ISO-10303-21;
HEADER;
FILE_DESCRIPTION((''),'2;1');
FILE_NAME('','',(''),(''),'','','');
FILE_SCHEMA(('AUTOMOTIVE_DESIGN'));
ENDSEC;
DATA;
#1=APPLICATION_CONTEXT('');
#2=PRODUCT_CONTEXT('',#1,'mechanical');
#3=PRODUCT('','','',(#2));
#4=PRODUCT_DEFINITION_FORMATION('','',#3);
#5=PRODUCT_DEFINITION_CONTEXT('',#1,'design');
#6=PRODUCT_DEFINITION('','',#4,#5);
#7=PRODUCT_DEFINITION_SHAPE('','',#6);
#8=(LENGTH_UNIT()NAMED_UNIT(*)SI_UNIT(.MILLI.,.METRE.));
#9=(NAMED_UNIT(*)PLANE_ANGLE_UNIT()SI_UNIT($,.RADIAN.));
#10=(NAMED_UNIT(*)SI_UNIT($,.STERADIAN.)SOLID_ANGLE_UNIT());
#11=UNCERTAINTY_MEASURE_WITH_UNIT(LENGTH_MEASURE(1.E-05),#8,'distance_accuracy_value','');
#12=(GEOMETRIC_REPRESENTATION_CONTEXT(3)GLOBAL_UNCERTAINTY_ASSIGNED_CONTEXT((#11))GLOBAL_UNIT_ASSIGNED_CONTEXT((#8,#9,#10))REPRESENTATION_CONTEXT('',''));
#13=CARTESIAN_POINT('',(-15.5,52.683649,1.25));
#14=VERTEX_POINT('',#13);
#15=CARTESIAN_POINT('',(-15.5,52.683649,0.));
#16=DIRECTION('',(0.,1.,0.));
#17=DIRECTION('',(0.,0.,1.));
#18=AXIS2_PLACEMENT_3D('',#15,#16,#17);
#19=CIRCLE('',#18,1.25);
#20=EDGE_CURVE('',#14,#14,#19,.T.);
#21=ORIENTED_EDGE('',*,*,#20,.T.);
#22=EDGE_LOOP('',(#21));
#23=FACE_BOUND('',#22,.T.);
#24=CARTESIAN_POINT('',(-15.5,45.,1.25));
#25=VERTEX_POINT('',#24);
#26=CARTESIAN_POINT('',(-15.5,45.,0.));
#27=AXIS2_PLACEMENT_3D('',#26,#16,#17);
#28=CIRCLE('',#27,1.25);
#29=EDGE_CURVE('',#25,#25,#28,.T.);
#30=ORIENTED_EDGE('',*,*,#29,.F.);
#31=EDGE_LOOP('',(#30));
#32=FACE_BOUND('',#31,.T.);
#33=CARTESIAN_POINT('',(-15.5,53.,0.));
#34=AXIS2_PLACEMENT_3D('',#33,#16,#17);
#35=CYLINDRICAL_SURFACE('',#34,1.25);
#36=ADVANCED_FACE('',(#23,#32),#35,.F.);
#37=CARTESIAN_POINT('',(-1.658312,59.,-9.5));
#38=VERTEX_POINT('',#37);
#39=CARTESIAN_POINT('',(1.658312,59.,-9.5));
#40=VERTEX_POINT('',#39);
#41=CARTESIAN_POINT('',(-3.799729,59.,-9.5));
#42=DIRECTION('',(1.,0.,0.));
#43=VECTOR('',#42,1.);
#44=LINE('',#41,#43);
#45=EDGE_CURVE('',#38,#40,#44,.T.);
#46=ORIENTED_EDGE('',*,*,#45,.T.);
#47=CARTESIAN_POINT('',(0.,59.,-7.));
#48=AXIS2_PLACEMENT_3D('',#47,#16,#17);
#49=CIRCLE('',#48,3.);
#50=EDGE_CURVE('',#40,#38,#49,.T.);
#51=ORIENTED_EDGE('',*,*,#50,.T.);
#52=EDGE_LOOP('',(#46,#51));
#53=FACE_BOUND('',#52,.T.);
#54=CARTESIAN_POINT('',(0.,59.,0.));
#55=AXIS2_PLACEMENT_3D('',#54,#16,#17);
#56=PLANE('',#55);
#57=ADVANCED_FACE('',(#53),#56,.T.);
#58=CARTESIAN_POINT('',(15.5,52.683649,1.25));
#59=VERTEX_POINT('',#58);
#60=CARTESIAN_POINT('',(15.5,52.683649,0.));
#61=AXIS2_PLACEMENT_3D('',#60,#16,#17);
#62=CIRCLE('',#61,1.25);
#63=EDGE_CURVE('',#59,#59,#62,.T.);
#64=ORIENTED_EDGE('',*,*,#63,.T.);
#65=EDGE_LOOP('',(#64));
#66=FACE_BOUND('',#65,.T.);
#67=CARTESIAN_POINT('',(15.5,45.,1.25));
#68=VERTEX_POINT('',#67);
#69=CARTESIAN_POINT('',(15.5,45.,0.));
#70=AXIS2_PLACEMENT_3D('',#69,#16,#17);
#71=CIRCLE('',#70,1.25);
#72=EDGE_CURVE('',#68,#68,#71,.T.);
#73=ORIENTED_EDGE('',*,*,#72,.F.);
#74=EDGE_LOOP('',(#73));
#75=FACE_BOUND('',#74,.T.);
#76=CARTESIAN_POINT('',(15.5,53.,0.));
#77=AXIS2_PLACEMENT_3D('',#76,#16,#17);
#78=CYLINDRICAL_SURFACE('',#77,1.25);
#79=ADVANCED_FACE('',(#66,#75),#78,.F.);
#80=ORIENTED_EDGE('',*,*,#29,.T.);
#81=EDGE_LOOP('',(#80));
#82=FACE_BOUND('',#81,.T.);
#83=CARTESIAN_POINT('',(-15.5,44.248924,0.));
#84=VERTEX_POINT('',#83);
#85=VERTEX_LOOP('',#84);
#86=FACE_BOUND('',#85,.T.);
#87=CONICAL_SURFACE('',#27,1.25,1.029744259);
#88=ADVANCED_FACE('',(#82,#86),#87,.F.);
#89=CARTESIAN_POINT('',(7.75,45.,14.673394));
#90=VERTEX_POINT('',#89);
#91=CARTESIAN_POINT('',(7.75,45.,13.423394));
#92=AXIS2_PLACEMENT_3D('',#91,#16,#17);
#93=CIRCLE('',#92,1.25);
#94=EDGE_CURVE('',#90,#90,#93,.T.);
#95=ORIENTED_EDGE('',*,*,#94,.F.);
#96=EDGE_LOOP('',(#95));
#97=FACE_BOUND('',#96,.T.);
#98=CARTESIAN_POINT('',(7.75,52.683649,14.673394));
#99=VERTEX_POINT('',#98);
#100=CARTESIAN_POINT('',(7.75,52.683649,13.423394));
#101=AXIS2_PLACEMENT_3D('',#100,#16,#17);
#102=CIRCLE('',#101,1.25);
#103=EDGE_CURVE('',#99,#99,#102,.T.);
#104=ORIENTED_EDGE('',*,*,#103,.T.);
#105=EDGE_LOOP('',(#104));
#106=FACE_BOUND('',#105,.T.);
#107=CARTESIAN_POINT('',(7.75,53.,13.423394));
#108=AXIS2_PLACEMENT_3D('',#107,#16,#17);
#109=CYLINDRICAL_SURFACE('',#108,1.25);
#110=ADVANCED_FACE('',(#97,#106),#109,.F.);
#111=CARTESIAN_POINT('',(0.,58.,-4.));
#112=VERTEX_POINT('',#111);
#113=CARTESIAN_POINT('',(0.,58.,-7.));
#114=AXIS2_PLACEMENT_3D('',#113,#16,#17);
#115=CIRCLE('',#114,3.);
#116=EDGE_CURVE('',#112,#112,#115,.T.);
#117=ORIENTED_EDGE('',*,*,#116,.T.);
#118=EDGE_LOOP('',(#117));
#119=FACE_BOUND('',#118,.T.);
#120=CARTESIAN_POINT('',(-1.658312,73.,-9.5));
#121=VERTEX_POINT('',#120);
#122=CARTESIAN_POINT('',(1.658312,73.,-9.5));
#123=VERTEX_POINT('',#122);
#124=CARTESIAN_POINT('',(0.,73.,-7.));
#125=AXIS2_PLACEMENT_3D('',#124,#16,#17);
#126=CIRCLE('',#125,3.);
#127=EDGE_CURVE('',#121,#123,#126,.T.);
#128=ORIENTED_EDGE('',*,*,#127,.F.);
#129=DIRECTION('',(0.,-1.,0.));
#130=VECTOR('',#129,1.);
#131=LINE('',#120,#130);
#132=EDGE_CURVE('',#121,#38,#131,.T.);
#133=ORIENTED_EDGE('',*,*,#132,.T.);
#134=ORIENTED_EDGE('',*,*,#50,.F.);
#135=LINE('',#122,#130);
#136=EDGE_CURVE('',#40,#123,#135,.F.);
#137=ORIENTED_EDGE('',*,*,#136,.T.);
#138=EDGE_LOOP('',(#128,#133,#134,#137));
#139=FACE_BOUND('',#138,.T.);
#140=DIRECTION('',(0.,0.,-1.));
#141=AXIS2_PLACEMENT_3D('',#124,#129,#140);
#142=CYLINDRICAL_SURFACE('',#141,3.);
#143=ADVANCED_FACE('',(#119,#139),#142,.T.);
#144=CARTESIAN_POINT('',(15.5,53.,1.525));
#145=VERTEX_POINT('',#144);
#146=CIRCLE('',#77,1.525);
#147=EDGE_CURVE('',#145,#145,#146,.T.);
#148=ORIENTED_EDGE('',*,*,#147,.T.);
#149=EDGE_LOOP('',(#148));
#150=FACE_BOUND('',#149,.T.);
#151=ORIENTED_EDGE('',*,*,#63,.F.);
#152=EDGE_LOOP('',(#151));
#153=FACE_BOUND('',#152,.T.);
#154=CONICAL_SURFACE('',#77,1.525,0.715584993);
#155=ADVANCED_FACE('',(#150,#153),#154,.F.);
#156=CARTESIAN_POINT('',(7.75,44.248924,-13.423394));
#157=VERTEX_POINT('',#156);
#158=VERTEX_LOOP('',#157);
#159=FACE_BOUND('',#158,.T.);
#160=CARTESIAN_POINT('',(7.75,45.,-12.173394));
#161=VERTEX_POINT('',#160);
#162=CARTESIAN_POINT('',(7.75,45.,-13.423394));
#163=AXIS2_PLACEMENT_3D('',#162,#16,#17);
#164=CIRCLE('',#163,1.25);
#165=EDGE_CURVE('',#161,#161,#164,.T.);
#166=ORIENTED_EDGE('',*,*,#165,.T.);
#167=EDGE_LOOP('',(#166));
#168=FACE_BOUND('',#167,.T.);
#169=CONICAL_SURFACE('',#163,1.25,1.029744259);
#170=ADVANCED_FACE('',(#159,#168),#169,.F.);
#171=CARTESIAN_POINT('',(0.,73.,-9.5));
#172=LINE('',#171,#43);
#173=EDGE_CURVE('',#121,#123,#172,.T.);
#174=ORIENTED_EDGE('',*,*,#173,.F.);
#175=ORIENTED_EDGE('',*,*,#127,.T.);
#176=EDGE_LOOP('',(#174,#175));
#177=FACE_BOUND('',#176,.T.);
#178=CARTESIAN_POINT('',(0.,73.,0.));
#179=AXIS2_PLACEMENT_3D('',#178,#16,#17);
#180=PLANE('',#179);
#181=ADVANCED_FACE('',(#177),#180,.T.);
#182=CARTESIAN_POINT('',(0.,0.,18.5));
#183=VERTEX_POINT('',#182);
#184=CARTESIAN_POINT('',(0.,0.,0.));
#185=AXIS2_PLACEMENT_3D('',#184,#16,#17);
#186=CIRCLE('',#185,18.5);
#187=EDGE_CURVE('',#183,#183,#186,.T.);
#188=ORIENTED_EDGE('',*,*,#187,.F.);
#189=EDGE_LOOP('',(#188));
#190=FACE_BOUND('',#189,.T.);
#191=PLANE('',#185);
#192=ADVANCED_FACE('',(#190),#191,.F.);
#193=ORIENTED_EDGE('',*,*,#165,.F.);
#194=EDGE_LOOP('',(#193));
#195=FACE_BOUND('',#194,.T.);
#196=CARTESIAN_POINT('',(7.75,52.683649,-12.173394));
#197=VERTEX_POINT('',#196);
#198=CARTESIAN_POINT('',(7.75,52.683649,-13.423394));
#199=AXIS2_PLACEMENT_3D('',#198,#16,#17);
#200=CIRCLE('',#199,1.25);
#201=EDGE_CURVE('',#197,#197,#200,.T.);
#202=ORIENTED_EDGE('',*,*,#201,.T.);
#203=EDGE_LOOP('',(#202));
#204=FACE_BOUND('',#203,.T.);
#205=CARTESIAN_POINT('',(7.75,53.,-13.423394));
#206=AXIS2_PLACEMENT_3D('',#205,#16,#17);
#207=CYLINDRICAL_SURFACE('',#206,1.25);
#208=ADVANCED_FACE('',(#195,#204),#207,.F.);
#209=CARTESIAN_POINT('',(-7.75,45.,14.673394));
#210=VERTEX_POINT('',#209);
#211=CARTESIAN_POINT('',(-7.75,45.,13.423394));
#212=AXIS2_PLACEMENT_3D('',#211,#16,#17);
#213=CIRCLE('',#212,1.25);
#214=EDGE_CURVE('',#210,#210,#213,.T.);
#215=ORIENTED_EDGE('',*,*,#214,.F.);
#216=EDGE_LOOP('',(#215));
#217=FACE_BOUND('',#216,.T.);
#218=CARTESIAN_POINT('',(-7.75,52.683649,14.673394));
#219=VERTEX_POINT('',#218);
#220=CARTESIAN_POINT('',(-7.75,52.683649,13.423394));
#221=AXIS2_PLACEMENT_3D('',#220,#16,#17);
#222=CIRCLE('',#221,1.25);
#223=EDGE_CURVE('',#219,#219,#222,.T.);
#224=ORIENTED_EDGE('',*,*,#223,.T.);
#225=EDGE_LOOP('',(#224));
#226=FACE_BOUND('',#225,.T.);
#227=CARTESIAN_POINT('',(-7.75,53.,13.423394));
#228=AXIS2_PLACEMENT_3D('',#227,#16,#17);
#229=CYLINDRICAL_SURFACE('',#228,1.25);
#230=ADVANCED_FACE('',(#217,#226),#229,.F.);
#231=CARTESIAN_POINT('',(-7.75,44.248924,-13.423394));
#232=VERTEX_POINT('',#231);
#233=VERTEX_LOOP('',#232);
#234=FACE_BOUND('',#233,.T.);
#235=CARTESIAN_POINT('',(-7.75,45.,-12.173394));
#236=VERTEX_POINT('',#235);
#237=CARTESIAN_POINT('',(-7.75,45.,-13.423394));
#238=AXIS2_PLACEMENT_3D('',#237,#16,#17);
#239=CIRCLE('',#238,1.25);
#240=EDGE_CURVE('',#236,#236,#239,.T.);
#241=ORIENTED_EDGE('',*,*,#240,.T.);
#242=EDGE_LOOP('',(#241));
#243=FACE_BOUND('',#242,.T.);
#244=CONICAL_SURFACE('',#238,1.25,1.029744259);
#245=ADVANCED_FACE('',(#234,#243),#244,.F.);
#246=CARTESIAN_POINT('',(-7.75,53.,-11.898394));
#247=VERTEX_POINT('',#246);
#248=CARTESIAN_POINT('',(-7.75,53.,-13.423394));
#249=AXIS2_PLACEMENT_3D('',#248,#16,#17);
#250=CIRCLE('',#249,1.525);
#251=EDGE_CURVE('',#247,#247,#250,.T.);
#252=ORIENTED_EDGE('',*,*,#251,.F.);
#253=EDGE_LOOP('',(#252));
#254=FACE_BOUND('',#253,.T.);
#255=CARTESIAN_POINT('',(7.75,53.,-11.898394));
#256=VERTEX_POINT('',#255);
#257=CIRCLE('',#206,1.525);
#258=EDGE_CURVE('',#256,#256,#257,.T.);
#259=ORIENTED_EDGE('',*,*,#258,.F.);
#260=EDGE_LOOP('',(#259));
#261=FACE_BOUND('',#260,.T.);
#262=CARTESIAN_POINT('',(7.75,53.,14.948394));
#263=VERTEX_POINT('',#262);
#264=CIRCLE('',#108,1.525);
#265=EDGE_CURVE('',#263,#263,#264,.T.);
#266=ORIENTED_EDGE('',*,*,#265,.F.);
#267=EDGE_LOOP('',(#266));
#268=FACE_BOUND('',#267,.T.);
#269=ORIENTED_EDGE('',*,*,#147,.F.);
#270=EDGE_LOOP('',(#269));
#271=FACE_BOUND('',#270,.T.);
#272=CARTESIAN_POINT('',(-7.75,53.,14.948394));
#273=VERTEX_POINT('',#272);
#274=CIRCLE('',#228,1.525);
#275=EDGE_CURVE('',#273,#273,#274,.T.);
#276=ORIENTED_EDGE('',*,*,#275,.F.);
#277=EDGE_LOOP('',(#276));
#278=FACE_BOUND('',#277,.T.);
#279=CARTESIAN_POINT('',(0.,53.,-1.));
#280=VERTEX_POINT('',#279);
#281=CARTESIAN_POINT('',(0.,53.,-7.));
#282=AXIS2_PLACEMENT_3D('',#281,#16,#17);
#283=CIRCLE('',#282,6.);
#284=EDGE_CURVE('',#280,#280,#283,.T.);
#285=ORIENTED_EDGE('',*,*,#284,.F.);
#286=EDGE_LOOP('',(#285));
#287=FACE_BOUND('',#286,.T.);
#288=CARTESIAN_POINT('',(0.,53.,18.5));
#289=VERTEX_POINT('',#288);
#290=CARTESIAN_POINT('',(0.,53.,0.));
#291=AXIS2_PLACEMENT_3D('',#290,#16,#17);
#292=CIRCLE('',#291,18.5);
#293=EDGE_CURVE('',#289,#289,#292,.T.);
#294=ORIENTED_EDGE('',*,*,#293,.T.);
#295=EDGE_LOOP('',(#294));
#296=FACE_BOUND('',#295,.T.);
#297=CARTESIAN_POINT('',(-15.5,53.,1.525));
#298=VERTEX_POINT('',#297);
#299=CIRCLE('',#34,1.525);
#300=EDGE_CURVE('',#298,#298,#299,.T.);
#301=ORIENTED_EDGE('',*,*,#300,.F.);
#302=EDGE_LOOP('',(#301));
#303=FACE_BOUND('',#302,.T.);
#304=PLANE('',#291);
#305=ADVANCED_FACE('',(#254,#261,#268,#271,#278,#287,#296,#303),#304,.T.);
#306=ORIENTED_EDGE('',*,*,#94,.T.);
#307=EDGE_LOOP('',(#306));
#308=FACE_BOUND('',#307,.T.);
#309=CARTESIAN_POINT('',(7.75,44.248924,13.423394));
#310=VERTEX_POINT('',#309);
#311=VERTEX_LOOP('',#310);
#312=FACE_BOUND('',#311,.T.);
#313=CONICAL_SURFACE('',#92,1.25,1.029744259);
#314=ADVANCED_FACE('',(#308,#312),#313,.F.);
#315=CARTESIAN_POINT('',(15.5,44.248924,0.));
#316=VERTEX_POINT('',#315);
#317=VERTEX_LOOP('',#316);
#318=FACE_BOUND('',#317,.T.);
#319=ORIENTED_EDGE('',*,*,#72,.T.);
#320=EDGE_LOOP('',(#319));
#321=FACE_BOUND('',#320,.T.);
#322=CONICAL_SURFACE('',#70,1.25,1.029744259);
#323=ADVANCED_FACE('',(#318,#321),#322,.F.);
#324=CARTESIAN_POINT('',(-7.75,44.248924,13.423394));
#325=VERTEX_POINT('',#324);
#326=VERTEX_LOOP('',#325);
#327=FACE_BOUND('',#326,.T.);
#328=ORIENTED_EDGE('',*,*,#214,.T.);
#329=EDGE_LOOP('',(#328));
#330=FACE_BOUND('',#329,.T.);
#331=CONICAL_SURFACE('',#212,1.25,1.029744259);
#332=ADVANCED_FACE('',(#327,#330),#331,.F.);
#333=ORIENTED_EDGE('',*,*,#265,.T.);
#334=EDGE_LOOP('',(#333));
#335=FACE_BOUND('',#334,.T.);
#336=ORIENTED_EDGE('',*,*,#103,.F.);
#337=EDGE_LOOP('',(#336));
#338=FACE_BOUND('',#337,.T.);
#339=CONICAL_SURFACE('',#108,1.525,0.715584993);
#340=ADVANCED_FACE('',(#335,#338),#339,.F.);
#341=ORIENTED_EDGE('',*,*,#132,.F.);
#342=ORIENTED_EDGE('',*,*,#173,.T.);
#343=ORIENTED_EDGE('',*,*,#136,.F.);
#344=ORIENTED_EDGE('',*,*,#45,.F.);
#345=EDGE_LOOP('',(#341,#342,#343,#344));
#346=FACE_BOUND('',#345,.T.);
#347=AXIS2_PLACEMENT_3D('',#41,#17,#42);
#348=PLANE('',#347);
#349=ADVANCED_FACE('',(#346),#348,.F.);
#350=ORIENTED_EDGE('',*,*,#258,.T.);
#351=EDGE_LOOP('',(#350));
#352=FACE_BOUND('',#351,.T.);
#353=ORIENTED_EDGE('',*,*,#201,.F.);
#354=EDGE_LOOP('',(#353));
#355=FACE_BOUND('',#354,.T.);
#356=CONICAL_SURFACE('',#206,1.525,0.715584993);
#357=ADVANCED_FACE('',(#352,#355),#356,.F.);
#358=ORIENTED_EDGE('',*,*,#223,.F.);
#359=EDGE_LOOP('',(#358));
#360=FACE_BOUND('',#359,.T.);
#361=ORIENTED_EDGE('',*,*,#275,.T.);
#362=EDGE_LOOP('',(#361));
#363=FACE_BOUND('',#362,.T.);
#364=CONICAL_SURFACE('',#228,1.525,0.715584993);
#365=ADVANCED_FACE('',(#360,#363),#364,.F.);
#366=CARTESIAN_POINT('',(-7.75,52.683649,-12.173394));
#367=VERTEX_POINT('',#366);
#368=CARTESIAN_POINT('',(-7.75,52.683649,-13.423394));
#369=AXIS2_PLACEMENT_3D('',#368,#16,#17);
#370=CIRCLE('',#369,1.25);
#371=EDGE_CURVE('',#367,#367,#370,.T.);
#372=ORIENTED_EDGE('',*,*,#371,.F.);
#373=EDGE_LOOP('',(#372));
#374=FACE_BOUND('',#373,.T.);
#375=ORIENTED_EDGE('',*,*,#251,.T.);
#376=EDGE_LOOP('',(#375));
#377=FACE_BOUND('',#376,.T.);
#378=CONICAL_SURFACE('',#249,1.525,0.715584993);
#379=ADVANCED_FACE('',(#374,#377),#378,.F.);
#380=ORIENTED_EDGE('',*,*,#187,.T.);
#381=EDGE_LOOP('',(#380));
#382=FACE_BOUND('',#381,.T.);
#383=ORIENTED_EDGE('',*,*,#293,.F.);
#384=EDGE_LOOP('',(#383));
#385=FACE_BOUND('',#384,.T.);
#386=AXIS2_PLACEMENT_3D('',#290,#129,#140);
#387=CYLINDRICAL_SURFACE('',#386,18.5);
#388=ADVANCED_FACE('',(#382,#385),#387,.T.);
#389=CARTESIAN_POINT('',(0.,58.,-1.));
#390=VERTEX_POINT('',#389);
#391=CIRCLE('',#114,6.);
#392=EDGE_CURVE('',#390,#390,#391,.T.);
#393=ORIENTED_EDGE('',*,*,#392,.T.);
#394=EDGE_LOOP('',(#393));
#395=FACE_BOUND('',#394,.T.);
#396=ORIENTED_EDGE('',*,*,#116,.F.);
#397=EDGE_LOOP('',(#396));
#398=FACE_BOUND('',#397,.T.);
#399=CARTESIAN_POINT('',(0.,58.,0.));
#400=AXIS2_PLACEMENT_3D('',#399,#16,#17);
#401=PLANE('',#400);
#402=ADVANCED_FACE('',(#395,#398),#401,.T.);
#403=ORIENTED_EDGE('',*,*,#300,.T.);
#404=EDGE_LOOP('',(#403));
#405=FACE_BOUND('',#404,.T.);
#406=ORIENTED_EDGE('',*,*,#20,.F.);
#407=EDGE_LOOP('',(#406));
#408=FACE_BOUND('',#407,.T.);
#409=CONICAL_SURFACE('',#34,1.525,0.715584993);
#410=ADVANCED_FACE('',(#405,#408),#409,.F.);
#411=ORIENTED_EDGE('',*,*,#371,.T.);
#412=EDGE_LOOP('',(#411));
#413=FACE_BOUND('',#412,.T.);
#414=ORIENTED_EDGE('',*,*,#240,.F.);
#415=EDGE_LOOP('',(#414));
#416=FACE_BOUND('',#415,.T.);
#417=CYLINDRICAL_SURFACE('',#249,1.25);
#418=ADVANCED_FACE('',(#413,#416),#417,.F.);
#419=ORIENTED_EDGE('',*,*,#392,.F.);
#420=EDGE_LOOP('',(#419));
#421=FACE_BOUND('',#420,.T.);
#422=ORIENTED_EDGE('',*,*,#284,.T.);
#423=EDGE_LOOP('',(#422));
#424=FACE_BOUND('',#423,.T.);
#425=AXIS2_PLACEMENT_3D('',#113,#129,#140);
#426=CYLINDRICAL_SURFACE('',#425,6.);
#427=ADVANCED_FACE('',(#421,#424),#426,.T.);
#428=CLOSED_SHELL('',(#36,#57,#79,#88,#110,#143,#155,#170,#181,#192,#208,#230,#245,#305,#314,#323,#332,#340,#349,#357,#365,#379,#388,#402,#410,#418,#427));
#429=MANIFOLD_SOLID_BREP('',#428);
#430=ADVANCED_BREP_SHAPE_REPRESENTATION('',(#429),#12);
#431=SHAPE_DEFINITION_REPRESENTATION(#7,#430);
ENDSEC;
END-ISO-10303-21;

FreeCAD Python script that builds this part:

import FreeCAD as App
import Part
import Sketcher

V = App.Vector
Q = App.Units.Quantity


def add_polygon(sketch, points):
    """Adds a closed chain of lines whose ends are joined by coincident constraints."""
    first, n = sketch.GeometryCount, len(points)
    for a, b in zip(points, points[1:] + points[:1]):
        sketch.addGeometry(Part.LineSegment(App.Vector(*a, 0), App.Vector(*b, 0)), False)
    for i in range(n):
        sketch.addConstraint(Sketcher.Constraint("Coincident", first + i, 2, first + (i + 1) % n, 1))

doc = App.newDocument("Part")
body = doc.addObject("PartDesign::Body", "Body")

# Sketch on XZ plane
sketch1 = body.newObject("Sketcher::SketchObject", "Sketch")
sketch1.AttachmentSupport = (doc.getObject("XZ_Plane"), [""])
sketch1.MapMode = "FlatFace"
sketch1.addGeometry(Part.Circle(V(0, 0, 0), V(0, 0, 1), 18), False)
sketch1.addConstraint([
    Sketcher.Constraint("Coincident", 0, 3, -1, 1),
    Sketcher.Constraint("Diameter", 0, 37.0),
])
pad1 = body.newObject("PartDesign::Pad", "Pad")
pad1.Profile = sketch1
pad1.Length = 53
pad1.Reversed = True

# Sketch on XZ plane
sketch2 = body.newObject("Sketcher::SketchObject", "Sketch001")
sketch2.AttachmentSupport = (doc.getObject("XZ_Plane"), [""])
sketch2.MapMode = "FlatFace"
sketch2.AttachmentOffset = App.Placement(V(0, 0, -53), App.Rotation())
sketch2.addGeometry([
    Part.Circle(V(0, -7, 0), V(0, 0, 1), 6),
    Part.Circle(V(0, -7, 0), V(0, 0, 1), 3),
], False)
sketch2.addConstraint([
    Sketcher.Constraint("Coincident", 1, 3, 0, 3),
    Sketcher.Constraint("PointOnObject", 0, 3, -2),
    Sketcher.Constraint("Diameter", 0, 12.0),
    Sketcher.Constraint("Diameter", 1, 6.0),
    Sketcher.Constraint("DistanceY", 0, 3, -1, 1, 7.0),
])
pad2 = body.newObject("PartDesign::Pad", "Pad001")
pad2.Profile = sketch2
pad2.Length = 5
pad2.Reversed = True

# Sketch on XZ plane
sketch3 = body.newObject("Sketcher::SketchObject", "Sketch002")
sketch3.AttachmentSupport = (doc.getObject("XZ_Plane"), [""])
sketch3.MapMode = "FlatFace"
sketch3.AttachmentOffset = App.Placement(V(0, 0, -53), App.Rotation())
sketch3.addGeometry(Part.Circle(V(0, -7, 0), V(0, 0, 1), 3), False)
sketch3.addConstraint([
    Sketcher.Constraint("PointOnObject", 0, 3, -2),
    Sketcher.Constraint("Diameter", 0, 6.0),
    Sketcher.Constraint("DistanceY", 0, 3, -1, 1, 7.0),
])
pad3 = body.newObject("PartDesign::Pad", "Pad002")
pad3.Profile = sketch3
pad3.Length = 20
pad3.Reversed = True

# Sketch on XZ plane
sketch4 = body.newObject("Sketcher::SketchObject", "Sketch003")
sketch4.AttachmentSupport = (doc.getObject("XZ_Plane"), [""])
sketch4.MapMode = "FlatFace"
sketch4.AttachmentOffset = App.Placement(V(0, 0, -73), App.Rotation())
add_polygon(sketch4, [(-3.8, -12.1), (-3.8, -9.5), (5.7, -9.5), (5.7, -12.1)])  # lines 0-3
sketch4.addConstraint([
    Sketcher.Constraint("Vertical", 0),
    Sketcher.Constraint("Horizontal", 1),
    Sketcher.Constraint("Vertical", 2),
    Sketcher.Constraint("Horizontal", 3),
    Sketcher.Constraint("DistanceY", 0, 2, -1, 1, 9.5),
    Sketcher.Constraint("DistanceY", 0, 1, 0, 2, 2.618979),
    Sketcher.Constraint("DistanceX", 1, 1, 1, 2, 9.457424),
    Sketcher.Constraint("DistanceX", 0, 2, -1, 1, 3.799729),
])
pocket1 = body.newObject("PartDesign::Pocket", "Pocket")
pocket1.Profile = sketch4
pocket1.Length = 14
pocket1.Reversed = True

# Sketch on YZ plane
sketch5 = body.newObject("Sketcher::SketchObject", "Sketch004")
sketch5.AttachmentSupport = (doc.getObject("YZ_Plane"), [""])
sketch5.MapMode = "FlatFace"
sketch5.AttachmentOffset = App.Placement(V(0, 0, 7.75), App.Rotation())
add_polygon(sketch5, [(44.25, -13.42), (53, -13.42), (53, -11.9), (52.68, -12.17), (45, -12.17)])  # lines 0-4
sketch5.addGeometry(Part.LineSegment(V(53, -13.42, 0), V(44.25, -13.42, 0)), True)  # axis
sketch5.addConstraint([
    Sketcher.Constraint("Horizontal", 0),
    Sketcher.Constraint("Vertical", 1),
    Sketcher.Constraint("Horizontal", 3),
    Sketcher.Constraint("Horizontal", 5),
    Sketcher.Constraint("Coincident", 5, 1, 0, 2),
    Sketcher.Constraint("Equal", 0, 5),
    Sketcher.Constraint("Angle", 2, Q("-139 deg")),
    Sketcher.Constraint("Angle", 4, Q("-121 deg")),
    Sketcher.Constraint("DistanceX", -1, 1, 0, 2, 53.0),
    Sketcher.Constraint("DistanceX", -1, 1, 3, 2, 45.0),
    Sketcher.Constraint("DistanceY", 1, 1, 1, 2, 1.525),
    Sketcher.Constraint("DistanceY", 0, 2, 2, 2, 1.25),
    Sketcher.Constraint("DistanceY", 0, 2, -1, 1, 13.423394),
])
groove = body.newObject("PartDesign::Groove", "Groove")
groove.Profile = sketch5
groove.ReferenceAxis = (sketch5, ["Axis0"])
groove.Angle = 360
doc.recompute()

polarpattern = body.newObject("PartDesign::PolarPattern", "PolarPattern")
polarpattern.Originals = [groove]
polarpattern.Axis = (doc.getObject("Y_Axis"), [""])
polarpattern.Angle = 360
polarpattern.Occurrences = 6
body.Tip = polarpattern

doc.recompute()
